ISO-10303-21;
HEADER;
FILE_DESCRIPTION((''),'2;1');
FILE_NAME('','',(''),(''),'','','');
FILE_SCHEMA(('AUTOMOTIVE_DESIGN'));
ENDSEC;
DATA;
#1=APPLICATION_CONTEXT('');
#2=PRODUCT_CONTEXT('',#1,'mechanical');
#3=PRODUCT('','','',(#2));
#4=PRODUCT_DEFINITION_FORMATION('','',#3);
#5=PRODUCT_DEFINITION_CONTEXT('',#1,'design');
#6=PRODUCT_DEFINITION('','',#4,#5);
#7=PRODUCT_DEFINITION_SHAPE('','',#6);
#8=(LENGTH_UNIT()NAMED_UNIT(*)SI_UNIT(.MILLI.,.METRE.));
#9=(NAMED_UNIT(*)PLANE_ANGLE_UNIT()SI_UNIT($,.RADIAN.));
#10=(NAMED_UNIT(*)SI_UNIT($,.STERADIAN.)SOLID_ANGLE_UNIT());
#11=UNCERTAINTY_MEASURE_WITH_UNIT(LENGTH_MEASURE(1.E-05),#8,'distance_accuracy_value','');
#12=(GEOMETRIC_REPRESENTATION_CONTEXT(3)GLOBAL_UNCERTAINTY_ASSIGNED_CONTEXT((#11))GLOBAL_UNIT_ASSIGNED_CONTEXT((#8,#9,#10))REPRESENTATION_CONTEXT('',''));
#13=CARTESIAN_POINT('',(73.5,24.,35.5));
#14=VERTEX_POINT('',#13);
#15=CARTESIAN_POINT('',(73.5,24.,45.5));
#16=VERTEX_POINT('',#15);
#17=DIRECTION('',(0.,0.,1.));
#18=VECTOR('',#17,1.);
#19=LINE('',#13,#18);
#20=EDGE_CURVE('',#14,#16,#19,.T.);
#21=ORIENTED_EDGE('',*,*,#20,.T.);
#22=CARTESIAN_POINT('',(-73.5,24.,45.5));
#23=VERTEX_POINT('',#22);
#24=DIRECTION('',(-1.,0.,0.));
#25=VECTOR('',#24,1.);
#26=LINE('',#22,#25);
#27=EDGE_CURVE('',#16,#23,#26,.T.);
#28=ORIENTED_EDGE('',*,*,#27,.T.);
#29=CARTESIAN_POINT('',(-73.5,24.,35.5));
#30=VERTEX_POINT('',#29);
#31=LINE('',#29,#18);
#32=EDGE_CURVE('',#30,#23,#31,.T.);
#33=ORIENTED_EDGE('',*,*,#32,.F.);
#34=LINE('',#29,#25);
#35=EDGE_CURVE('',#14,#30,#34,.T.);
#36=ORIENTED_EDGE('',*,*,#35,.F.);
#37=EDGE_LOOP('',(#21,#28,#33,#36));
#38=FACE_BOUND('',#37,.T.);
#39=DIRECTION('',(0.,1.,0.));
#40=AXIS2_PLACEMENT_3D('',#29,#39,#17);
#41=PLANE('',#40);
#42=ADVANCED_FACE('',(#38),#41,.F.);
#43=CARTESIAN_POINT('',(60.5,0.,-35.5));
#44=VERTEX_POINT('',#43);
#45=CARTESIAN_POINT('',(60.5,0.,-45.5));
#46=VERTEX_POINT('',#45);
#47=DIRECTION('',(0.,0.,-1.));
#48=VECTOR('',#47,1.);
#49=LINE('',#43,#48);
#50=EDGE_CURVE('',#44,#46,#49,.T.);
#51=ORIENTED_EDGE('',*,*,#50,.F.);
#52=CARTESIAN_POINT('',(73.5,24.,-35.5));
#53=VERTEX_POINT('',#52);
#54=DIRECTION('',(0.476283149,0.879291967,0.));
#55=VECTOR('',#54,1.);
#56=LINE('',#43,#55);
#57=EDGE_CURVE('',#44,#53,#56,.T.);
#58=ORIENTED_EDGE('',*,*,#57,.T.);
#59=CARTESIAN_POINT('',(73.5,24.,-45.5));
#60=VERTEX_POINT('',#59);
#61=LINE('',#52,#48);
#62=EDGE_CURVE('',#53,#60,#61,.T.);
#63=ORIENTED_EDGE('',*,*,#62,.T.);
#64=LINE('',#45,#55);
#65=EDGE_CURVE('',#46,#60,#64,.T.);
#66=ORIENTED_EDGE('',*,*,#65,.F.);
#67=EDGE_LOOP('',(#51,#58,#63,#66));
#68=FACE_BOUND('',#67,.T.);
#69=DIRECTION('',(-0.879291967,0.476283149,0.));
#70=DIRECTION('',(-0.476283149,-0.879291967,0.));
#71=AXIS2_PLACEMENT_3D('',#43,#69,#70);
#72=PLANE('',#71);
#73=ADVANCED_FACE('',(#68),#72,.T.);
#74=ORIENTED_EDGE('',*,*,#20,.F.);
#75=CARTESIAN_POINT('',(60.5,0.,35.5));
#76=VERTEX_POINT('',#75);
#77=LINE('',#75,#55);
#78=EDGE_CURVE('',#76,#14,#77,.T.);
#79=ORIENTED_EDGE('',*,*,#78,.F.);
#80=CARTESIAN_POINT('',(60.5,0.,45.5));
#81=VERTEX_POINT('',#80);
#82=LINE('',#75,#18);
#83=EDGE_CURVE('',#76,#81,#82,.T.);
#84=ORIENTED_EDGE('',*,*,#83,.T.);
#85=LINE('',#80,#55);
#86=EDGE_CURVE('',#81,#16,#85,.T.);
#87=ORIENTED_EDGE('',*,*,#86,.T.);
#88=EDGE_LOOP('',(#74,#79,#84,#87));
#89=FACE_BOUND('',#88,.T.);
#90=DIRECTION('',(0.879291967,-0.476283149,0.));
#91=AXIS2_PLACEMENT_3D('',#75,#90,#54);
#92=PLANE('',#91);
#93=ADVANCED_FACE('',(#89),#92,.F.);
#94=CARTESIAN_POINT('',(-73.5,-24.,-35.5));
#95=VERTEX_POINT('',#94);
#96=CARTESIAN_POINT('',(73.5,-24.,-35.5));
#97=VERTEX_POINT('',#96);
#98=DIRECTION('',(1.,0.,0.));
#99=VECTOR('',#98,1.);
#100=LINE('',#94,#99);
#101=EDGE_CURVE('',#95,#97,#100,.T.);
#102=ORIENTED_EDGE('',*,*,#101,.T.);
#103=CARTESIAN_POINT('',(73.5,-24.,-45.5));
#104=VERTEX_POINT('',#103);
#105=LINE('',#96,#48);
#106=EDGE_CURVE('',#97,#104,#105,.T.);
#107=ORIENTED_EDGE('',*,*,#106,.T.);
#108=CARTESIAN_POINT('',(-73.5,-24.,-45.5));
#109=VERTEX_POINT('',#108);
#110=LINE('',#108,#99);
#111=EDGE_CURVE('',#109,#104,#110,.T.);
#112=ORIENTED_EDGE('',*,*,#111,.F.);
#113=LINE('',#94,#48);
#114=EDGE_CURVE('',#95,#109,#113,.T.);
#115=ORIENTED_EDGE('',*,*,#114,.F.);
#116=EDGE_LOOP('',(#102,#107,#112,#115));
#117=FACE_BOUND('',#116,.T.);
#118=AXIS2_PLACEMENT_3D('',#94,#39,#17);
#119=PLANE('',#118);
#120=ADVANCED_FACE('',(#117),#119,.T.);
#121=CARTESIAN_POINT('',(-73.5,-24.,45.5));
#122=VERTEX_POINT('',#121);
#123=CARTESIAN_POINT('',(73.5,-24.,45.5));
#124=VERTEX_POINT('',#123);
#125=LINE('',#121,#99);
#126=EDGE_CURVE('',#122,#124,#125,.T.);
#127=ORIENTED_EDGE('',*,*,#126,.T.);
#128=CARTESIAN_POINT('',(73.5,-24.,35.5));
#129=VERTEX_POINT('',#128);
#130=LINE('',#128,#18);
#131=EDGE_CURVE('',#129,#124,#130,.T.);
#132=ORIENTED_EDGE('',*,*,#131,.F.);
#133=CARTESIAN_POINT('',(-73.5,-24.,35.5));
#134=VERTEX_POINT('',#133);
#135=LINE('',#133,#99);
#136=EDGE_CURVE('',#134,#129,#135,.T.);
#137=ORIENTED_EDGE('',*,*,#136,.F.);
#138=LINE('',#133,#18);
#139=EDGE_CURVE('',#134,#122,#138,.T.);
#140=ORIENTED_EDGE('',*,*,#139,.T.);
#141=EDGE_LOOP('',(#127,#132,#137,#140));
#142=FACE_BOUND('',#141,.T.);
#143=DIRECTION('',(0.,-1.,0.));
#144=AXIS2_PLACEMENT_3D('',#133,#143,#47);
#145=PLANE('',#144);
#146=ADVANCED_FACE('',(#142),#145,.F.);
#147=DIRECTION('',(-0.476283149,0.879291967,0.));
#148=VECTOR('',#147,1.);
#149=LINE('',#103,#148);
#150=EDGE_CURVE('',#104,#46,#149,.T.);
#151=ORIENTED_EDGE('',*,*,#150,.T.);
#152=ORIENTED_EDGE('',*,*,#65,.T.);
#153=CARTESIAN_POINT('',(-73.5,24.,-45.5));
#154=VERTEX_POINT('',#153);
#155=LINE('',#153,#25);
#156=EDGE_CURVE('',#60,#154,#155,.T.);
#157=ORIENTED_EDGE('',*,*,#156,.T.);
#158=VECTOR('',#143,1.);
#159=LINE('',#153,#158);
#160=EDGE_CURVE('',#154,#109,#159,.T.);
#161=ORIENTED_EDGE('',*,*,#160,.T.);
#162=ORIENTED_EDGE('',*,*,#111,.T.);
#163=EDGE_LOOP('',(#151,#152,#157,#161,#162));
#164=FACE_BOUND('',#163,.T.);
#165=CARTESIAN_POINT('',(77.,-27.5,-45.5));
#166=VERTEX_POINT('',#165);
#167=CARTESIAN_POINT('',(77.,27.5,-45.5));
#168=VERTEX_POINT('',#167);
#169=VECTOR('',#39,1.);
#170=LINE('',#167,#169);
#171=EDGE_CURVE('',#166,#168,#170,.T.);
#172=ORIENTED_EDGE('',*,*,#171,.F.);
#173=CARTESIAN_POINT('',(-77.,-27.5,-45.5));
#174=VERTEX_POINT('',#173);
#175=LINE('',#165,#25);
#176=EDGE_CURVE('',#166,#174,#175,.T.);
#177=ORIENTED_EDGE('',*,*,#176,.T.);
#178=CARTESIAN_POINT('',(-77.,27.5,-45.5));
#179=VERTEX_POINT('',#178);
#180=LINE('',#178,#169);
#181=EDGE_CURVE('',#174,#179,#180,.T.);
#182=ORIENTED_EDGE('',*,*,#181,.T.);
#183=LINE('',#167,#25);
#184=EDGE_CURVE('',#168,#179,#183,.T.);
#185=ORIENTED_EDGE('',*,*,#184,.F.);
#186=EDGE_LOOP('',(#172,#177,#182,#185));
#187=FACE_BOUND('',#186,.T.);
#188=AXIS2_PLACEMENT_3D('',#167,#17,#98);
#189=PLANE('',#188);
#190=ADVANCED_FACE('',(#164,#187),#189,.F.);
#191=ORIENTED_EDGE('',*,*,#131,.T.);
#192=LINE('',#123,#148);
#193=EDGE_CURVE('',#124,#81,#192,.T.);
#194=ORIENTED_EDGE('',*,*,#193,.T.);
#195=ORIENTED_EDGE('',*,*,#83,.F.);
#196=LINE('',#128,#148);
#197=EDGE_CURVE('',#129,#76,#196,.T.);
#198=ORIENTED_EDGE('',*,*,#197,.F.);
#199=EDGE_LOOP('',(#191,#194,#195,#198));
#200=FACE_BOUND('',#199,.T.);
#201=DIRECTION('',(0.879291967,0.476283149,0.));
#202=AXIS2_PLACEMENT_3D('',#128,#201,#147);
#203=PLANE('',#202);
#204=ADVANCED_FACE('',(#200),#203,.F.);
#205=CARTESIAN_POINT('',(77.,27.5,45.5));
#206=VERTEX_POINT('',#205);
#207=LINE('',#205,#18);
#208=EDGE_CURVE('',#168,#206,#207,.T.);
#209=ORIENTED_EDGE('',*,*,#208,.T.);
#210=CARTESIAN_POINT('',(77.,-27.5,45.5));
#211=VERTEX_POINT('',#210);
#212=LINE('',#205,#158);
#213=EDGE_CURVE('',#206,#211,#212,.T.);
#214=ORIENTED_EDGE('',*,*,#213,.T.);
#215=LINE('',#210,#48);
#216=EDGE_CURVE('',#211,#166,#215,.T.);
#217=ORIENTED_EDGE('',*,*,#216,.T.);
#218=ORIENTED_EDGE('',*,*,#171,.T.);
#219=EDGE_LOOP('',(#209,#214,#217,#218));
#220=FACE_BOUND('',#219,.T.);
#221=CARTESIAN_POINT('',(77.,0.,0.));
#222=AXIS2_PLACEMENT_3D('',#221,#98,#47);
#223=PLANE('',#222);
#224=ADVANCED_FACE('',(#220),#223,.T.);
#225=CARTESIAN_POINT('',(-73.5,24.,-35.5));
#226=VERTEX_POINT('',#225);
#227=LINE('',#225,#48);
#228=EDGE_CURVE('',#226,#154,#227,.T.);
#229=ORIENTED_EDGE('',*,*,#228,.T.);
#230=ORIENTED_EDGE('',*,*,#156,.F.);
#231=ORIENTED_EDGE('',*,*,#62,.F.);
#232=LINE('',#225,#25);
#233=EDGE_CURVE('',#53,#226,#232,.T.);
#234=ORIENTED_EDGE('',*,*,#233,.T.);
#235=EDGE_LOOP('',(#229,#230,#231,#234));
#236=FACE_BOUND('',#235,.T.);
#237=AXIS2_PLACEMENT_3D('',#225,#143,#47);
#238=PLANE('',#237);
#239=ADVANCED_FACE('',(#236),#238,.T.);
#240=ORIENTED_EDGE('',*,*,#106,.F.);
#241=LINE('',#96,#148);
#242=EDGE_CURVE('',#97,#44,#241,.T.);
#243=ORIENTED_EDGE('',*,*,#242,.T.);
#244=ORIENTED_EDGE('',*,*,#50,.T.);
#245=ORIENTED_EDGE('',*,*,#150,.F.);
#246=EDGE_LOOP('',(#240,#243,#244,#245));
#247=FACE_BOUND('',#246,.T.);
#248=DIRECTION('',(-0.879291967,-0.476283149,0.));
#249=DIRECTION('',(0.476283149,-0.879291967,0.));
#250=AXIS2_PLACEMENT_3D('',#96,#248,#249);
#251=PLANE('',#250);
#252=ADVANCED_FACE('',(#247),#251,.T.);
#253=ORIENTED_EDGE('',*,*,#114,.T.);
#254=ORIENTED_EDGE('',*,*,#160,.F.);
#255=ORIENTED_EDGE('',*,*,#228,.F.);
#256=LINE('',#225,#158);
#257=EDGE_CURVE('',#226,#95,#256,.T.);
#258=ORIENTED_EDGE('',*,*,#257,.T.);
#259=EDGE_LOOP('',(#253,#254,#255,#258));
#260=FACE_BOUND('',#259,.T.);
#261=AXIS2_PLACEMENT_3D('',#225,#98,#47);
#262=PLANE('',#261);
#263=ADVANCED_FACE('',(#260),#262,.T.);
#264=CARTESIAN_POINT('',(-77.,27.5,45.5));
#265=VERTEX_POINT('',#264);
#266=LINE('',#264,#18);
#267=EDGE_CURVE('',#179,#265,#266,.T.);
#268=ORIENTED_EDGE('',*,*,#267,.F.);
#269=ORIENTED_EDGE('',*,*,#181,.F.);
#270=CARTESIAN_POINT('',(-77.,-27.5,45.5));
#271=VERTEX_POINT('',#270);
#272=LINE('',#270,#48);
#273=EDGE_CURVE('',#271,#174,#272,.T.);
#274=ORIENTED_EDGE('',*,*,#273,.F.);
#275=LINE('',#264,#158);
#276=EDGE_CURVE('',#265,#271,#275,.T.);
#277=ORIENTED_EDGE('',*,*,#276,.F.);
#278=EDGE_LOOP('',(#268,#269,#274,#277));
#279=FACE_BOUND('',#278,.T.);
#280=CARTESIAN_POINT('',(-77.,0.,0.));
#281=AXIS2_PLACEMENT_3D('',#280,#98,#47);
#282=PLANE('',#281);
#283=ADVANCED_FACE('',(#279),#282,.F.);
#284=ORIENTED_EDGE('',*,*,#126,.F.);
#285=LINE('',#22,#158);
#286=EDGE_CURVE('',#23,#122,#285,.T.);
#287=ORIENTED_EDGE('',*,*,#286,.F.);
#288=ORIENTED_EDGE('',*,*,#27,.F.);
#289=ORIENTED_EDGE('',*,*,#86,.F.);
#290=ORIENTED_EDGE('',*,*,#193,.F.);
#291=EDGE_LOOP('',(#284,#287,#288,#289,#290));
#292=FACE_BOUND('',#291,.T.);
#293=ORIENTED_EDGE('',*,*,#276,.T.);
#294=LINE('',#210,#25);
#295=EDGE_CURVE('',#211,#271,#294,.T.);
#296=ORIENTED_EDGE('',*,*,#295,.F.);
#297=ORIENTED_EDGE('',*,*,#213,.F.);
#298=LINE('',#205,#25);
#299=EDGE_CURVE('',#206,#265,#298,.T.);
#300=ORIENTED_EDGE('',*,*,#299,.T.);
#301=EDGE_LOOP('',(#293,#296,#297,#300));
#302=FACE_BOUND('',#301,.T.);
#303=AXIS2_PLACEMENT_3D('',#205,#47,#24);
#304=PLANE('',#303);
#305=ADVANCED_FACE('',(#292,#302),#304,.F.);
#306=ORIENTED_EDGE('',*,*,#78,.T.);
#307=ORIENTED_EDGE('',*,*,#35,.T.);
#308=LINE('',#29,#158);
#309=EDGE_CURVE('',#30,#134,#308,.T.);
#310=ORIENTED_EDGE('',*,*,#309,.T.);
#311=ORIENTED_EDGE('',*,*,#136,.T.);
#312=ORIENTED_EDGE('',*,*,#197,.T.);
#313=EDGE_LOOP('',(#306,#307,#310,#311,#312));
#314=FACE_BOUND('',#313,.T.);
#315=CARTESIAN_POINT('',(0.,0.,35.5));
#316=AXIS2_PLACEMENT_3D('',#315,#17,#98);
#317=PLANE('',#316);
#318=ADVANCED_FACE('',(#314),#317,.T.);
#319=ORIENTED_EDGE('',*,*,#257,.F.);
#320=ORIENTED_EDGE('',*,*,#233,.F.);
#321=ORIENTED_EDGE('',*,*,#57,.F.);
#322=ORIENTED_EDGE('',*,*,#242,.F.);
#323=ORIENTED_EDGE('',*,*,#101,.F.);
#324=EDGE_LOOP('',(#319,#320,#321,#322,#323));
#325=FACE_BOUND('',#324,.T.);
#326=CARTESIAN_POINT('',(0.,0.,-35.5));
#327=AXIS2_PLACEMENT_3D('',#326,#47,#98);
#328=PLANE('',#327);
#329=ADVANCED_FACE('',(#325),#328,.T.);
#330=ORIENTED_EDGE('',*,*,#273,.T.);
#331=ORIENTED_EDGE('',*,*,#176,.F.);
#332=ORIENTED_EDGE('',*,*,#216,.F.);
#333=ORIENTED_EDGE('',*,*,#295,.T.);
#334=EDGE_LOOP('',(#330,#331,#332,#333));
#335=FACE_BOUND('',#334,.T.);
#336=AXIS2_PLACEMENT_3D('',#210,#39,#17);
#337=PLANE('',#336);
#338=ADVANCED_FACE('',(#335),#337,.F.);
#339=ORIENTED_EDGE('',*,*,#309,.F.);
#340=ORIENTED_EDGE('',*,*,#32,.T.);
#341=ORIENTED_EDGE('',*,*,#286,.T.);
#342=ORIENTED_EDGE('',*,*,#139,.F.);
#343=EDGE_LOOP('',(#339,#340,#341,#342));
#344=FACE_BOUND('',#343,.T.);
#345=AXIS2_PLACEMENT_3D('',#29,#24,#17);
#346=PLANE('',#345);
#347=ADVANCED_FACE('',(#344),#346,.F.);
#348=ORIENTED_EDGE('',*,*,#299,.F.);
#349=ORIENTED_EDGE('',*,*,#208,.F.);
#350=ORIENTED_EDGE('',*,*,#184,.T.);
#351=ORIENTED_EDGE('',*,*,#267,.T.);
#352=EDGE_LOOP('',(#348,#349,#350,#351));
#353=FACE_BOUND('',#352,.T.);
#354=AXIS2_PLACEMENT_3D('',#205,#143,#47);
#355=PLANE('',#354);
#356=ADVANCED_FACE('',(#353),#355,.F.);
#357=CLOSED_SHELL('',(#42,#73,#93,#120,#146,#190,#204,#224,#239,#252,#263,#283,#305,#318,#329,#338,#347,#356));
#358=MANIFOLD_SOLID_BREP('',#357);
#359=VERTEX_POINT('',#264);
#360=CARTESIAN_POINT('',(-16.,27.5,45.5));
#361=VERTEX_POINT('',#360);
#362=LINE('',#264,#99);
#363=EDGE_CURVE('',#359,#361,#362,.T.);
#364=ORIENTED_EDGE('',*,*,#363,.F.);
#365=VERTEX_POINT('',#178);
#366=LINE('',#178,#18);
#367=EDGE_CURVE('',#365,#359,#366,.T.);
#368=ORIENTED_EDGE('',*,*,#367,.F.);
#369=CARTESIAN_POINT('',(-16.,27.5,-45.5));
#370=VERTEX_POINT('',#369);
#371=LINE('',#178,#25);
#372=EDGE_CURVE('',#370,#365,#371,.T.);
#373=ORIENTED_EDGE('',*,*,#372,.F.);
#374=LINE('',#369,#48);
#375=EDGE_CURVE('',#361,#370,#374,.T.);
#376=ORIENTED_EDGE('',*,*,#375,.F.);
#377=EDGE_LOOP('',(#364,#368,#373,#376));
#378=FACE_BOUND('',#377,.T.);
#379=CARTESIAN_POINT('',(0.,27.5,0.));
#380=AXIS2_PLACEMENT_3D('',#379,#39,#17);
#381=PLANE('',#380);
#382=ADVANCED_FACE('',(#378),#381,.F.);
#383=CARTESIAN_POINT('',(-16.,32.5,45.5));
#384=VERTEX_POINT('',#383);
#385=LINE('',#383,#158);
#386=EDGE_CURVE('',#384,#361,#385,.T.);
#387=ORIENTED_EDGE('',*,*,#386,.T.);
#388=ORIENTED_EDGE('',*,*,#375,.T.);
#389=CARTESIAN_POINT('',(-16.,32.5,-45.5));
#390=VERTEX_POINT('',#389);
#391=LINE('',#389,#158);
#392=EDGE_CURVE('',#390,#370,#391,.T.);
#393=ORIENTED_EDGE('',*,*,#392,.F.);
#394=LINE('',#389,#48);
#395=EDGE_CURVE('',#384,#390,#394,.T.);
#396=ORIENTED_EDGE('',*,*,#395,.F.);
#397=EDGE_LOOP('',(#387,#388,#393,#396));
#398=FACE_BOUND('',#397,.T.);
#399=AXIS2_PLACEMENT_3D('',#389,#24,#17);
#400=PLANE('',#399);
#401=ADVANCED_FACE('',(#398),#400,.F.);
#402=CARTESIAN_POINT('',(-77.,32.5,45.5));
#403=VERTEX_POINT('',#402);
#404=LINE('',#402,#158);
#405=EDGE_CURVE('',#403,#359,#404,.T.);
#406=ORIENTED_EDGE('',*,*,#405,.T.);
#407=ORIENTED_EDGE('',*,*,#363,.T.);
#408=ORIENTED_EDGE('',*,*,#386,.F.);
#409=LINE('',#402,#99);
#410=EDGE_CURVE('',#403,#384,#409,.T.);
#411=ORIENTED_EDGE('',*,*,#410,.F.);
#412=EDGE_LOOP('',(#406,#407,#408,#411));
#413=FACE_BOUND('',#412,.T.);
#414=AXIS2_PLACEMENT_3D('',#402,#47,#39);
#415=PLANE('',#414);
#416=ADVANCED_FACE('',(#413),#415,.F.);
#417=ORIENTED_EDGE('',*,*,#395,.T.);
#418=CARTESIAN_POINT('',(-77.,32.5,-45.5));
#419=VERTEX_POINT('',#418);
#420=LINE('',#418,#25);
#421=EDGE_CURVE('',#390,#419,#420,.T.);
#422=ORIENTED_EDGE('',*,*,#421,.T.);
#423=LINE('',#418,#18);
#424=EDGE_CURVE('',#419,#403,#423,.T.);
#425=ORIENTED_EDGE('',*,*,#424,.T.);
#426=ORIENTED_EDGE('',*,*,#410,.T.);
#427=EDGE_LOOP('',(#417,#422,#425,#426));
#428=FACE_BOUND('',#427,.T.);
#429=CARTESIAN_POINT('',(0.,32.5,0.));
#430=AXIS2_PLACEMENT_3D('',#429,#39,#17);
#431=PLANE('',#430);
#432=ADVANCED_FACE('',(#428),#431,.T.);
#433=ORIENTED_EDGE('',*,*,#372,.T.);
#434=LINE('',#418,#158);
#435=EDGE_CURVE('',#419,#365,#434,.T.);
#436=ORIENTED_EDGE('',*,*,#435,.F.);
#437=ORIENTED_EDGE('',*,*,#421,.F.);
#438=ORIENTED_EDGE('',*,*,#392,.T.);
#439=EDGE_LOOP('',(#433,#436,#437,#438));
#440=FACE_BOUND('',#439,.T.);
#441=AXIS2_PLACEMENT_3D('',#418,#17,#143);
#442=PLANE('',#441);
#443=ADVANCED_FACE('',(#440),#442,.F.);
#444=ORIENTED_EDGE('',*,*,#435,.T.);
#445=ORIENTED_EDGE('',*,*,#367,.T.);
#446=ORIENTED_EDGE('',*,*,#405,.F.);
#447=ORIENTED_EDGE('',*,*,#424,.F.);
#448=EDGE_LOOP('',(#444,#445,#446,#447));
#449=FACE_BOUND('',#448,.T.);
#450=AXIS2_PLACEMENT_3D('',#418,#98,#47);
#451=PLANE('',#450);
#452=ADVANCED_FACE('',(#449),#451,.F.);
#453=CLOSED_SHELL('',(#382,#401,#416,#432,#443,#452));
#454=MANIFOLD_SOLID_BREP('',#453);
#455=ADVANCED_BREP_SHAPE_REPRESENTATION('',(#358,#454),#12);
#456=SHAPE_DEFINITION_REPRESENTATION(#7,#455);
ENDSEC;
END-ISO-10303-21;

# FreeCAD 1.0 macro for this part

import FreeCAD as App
import Part
import Sketcher

V = App.Vector
Q = App.Units.Quantity

doc = App.newDocument("Part")
params = doc.addObject("Spreadsheet::Sheet", "Params")
for row, (alias, value) in enumerate([
    ("sketch1_width", "55 mm"),
    ("sketch1_height", "91 mm"),
    ("pad1_length", "154 mm"),
    ("sketch2_width", "147 mm"),
    ("sketch2_height", "48 mm"),
    ("pocket1_length", "10 mm"),
    ("sketch3_width", "61 mm"),
    ("sketch3_height", "91 mm"),
    ("pad2_length", "5 mm"),
], start=1):
    params.set(f"A{row}", alias)
    params.set(f"B{row}", "=" + value)
    params.setAlias(f"B{row}", alias)

body = doc.addObject("PartDesign::Body", "Body")

sketch1 = doc.addObject("Sketcher::SketchObject", "Sketch")
body.addObject(sketch1)
sketch1.AttachmentSupport = (doc.YZ_Plane, [""])
sketch1.MapMode = "FlatFace"
sketch1.addGeometry(Part.LineSegment(V(27.5, 45.5, 0), V(-27.5, 45.5, 0)), False)
sketch1.addGeometry(Part.LineSegment(V(-27.5, 45.5, 0), V(-27.5, -45.5, 0)), False)
sketch1.addGeometry(Part.LineSegment(V(-27.5, -45.5, 0), V(27.5, -45.5, 0)), False)
sketch1.addGeometry(Part.LineSegment(V(27.5, -45.5, 0), V(27.5, 45.5, 0)), False)
sketch1.addConstraint(Sketcher.Constraint("Coincident", 0, 2, 1, 1))
sketch1.addConstraint(Sketcher.Constraint("Coincident", 1, 2, 2, 1))
sketch1.addConstraint(Sketcher.Constraint("Coincident", 2, 2, 3, 1))
sketch1.addConstraint(Sketcher.Constraint("Coincident", 3, 2, 0, 1))
sketch1.addConstraint(Sketcher.Constraint("Horizontal", 0))
sketch1.addConstraint(Sketcher.Constraint("Vertical", 1))
sketch1.addConstraint(Sketcher.Constraint("Horizontal", 2))
sketch1.addConstraint(Sketcher.Constraint("Vertical", 3))
sketch1.addConstraint(Sketcher.Constraint("Symmetric", 0, 2, 2, 2, -1, 1))
sketch1.addConstraint(Sketcher.Constraint("DistanceX", 0, 2, 0, 1, Q("55 mm")))
sketch1.addConstraint(Sketcher.Constraint("DistanceY", 1, 2, 1, 1, Q("91 mm")))
sketch1.setExpression("Constraints[9]", "Params.sketch1_width")
sketch1.setExpression("Constraints[10]", "Params.sketch1_height")
pad1 = doc.addObject("PartDesign::Pad", "Pad")
body.addObject(pad1)
pad1.Profile = sketch1
pad1.setExpression("Length", "Params.pad1_length")
pad1.Midplane = True

sketch2 = doc.addObject("Sketcher::SketchObject", "Sketch001")
body.addObject(sketch2)
sketch2.AttachmentSupport = (doc.XY_Plane, [""])
sketch2.MapMode = "FlatFace"
sketch2.AttachmentOffset = App.Placement(V(0, 0, 45.5), App.Rotation())
sketch2.addGeometry(Part.LineSegment(V(73.5, 24, 0), V(-73.5, 24, 0)), False)
sketch2.addGeometry(Part.LineSegment(V(-73.5, 24, 0), V(-73.5, -24, 0)), False)
sketch2.addGeometry(Part.LineSegment(V(-73.5, -24, 0), V(73.5, -24, 0)), False)
sketch2.addGeometry(Part.LineSegment(V(73.5, -24, 0), V(60.5, 0, 0)), False)
sketch2.addGeometry(Part.LineSegment(V(60.5, 0, 0), V(73.5, 24, 0)), False)
sketch2.addConstraint(Sketcher.Constraint("Coincident", 0, 2, 1, 1))
sketch2.addConstraint(Sketcher.Constraint("Coincident", 1, 2, 2, 1))
sketch2.addConstraint(Sketcher.Constraint("Coincident", 2, 2, 3, 1))
sketch2.addConstraint(Sketcher.Constraint("Coincident", 3, 2, 4, 1))
sketch2.addConstraint(Sketcher.Constraint("Coincident", 4, 2, 0, 1))
sketch2.addConstraint(Sketcher.Constraint("Horizontal", 0))
sketch2.addConstraint(Sketcher.Constraint("Vertical", 1))
sketch2.addConstraint(Sketcher.Constraint("Horizontal", 2))
sketch2.addConstraint(Sketcher.Constraint("Symmetric", 0, 2, 2, 2, -1, 1))
sketch2.addConstraint(Sketcher.Constraint("PointOnObject", 3, 2, -1))
sketch2.addConstraint(Sketcher.Constraint("Vertical", 2, 2, 4, 2))
sketch2.addConstraint(Sketcher.Constraint("DistanceX", 0, 2, 0, 1, Q("147 mm")))
sketch2.addConstraint(Sketcher.Constraint("DistanceY", 1, 2, 1, 1, Q("48 mm")))
sketch2.addConstraint(Sketcher.Constraint("DistanceX", 3, 2, 2, 2, Q("13 mm")))
sketch2.setExpression("Constraints[11]", "Params.sketch2_width")
sketch2.setExpression("Constraints[12]", "Params.sketch2_height")
pocket1 = doc.addObject("PartDesign::Pocket", "Pocket")
body.addObject(pocket1)
pocket1.Profile = sketch2
pocket1.setExpression("Length", "Params.pocket1_length")
doc.recompute()

mirrored = doc.addObject("PartDesign::Mirrored", "Mirrored")
body.addObject(mirrored)
mirrored.Originals = [pocket1]
mirrored.MirrorPlane = (doc.XY_Plane, [""])
body.Tip = mirrored
body2 = doc.addObject("PartDesign::Body", "Body001")

sketch3 = doc.addObject("Sketcher::SketchObject", "Sketch002")
body2.addObject(sketch3)
sketch3.AttachmentSupport = (doc.getObject("XZ_Plane001"), [""])
sketch3.MapMode = "FlatFace"
sketch3.AttachmentOffset = App.Placement(V(0, 0, -27.5), App.Rotation())
sketch3.addGeometry(Part.LineSegment(V(-77, -45.5, 0), V(-77, 45.5, 0)), False)
sketch3.addGeometry(Part.LineSegment(V(-77, 45.5, 0), V(-16, 45.5, 0)), False)
sketch3.addGeometry(Part.LineSegment(V(-16, 45.5, 0), V(-16, -45.5, 0)), False)
sketch3.addGeometry(Part.LineSegment(V(-16, -45.5, 0), V(-77, -45.5, 0)), False)
sketch3.addConstraint(Sketcher.Constraint("Coincident", 0, 2, 1, 1))
sketch3.addConstraint(Sketcher.Constraint("Coincident", 1, 2, 2, 1))
sketch3.addConstraint(Sketcher.Constraint("Coincident", 2, 2, 3, 1))
sketch3.addConstraint(Sketcher.Constraint("Coincident", 3, 2, 0, 1))
sketch3.addConstraint(Sketcher.Constraint("Vertical", 0))
sketch3.addConstraint(Sketcher.Constraint("Horizontal", 1))
sketch3.addConstraint(Sketcher.Constraint("Vertical", 2))
sketch3.addConstraint(Sketcher.Constraint("Horizontal", 3))
sketch3.addConstraint(Sketcher.Constraint("DistanceX", 1, 1, 1, 2, Q("61 mm")))
sketch3.addConstraint(Sketcher.Constraint("DistanceY", 0, 1, 0, 2, Q("91 mm")))
sketch3.addConstraint(Sketcher.Constraint("DistanceX", 0, 2, -1, 1, Q("77 mm")))
sketch3.addConstraint(Sketcher.Constraint("DistanceY", -1, 1, 0, 2, Q("45.5 mm")))
sketch3.setExpression("Constraints[8]", "Params.sketch3_width")
sketch3.setExpression("Constraints[9]", "Params.sketch3_height")
pad2 = doc.addObject("PartDesign::Pad", "Pad001")
body2.addObject(pad2)
pad2.Profile = sketch3
pad2.setExpression("Length", "Params.pad2_length")
pad2.Reversed = True

doc.recompute()
